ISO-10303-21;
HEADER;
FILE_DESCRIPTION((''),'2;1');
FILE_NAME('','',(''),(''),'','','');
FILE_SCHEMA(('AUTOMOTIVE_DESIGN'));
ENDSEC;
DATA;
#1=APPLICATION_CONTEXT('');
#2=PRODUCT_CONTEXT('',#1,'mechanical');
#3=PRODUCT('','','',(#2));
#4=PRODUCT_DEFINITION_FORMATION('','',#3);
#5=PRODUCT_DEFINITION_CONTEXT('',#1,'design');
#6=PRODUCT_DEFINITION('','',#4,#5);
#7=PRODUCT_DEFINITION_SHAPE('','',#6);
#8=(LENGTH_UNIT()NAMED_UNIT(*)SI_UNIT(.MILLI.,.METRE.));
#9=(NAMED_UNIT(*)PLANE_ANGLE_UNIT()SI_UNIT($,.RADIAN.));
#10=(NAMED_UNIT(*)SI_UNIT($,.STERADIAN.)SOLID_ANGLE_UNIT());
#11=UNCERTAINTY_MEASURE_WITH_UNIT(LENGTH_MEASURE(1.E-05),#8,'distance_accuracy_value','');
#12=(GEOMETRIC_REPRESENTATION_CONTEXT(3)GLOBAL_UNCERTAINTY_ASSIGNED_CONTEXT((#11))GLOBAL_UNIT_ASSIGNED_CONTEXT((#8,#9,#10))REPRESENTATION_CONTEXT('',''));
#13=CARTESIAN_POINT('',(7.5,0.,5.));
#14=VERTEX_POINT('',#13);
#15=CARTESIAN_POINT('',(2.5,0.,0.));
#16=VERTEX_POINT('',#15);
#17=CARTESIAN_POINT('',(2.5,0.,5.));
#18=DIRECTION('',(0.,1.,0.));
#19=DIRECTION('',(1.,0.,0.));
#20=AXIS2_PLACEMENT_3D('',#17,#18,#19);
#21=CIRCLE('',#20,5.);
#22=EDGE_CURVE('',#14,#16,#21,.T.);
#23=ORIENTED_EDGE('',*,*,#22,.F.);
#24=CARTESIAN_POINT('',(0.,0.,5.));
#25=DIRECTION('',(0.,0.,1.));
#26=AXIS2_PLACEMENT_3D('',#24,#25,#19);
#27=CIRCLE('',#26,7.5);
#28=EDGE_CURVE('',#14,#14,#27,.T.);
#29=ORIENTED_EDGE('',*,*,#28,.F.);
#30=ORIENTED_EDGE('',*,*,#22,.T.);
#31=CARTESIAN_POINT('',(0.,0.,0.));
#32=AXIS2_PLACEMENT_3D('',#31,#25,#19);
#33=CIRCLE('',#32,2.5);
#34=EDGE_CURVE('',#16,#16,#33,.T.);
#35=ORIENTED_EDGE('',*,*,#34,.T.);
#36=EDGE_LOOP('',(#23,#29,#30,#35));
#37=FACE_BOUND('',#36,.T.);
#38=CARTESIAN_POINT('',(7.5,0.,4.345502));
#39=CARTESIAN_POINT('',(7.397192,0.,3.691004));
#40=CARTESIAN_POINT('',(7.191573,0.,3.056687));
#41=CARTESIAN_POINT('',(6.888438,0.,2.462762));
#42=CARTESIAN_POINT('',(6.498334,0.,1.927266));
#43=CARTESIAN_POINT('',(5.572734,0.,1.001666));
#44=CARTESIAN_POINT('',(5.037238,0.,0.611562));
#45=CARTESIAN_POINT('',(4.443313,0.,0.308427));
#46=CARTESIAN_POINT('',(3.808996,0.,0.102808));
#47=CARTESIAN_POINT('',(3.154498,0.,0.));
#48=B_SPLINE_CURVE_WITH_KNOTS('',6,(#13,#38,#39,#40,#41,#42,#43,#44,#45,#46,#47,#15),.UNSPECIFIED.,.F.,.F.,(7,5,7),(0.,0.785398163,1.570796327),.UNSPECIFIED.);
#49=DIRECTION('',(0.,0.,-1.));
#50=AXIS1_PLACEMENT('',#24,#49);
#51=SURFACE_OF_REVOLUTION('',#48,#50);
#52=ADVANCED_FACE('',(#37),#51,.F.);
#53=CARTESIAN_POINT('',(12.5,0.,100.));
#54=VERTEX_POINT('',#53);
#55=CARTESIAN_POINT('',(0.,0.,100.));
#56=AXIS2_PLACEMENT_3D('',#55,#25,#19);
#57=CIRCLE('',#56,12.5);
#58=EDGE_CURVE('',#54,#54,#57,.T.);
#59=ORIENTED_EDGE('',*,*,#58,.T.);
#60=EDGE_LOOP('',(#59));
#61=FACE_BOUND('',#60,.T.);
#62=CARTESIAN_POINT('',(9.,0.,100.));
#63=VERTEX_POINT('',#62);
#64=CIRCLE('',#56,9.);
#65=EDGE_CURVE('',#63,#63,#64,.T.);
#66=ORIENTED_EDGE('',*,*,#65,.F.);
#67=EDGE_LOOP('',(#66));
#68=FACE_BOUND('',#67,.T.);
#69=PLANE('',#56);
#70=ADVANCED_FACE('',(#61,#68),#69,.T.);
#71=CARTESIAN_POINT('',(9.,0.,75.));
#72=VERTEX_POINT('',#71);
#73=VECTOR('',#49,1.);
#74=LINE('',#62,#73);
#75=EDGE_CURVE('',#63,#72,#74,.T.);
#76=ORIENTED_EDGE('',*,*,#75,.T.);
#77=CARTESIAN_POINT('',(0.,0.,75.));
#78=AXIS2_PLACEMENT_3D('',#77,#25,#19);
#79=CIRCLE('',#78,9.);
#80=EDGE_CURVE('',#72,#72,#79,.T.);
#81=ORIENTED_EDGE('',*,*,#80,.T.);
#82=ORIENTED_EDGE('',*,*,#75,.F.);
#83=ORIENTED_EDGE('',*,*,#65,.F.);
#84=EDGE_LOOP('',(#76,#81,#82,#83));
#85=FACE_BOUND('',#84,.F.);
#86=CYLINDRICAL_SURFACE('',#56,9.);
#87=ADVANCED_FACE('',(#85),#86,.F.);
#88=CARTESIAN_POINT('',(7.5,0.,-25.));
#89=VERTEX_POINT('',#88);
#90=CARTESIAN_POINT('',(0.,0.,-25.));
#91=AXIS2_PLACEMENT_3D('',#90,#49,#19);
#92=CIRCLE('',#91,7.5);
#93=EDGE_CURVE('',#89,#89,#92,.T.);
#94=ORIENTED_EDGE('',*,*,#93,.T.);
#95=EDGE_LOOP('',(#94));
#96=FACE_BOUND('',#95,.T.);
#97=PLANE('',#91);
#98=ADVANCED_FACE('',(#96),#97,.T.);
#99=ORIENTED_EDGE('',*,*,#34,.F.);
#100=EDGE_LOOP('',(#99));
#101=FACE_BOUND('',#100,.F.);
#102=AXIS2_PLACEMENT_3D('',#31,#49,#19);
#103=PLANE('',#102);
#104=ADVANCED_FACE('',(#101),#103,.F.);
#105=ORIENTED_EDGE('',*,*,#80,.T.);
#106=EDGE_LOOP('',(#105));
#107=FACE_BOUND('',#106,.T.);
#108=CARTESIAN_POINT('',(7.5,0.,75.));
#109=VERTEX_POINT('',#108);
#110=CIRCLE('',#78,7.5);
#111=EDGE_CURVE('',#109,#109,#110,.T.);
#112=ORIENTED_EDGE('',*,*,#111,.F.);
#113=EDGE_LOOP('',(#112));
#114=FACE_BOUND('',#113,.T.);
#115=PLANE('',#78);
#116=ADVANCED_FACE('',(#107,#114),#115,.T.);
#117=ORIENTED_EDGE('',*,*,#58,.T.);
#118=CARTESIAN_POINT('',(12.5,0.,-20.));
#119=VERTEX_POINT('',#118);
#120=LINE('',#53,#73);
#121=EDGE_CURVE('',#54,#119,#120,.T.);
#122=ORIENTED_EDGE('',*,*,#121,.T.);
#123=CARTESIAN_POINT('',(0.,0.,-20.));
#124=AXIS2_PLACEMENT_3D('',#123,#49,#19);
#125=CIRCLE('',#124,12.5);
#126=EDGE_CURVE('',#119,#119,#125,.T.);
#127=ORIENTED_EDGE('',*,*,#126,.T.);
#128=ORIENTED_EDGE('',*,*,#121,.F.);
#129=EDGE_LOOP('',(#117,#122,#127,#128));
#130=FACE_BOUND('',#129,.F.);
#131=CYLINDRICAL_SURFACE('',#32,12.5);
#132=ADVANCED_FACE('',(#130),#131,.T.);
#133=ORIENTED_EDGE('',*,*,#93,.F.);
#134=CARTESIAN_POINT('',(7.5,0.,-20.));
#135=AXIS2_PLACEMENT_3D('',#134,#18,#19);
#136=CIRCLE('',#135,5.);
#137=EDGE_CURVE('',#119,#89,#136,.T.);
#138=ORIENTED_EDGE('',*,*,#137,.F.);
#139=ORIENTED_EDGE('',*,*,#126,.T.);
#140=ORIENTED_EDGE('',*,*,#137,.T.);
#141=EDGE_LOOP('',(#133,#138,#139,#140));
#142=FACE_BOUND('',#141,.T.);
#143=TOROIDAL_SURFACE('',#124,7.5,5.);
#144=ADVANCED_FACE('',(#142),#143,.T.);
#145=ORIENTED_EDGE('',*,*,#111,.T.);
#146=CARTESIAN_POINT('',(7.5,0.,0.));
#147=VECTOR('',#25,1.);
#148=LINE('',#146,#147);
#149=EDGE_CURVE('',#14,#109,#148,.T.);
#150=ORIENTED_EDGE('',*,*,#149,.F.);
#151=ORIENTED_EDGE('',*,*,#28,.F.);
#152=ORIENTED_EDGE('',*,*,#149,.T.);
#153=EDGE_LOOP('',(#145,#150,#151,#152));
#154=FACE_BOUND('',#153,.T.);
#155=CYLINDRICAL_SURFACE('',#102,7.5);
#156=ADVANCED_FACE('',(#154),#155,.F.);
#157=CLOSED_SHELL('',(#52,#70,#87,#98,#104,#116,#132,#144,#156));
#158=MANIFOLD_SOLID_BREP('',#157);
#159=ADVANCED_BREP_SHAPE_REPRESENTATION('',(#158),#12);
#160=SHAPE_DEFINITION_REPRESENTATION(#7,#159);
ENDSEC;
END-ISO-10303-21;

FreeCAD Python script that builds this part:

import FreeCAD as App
import Part
import Sketcher
from FreeCAD import Vector
Q = App.Units.Quantity


def edges_at(feature, points):
    """Names of the edges that pass closest to the given points."""
    edges = feature.Shape.Edges
    near = lambda p: min(range(len(edges)), key=lambda i: edges[i].distToShape(Part.Vertex(*p))[0])
    return sorted({f"Edge{near(p) + 1}" for p in points})

doc = App.newDocument("Part")
body = doc.addObject("PartDesign::Body", "Body")

sketch1 = doc.addObject("Sketcher::SketchObject", "Sketch")
body.addObject(sketch1)
sketch1.AttachmentSupport = (doc.XY_Plane, [""])
sketch1.MapMode = "FlatFace"
sketch1.addGeometry([
    Part.Circle(Vector(0, 0, 0), Vector(0, 0, 1), 12),
    Part.Circle(Vector(0, 0, 0), Vector(0, 0, 1), 8),
], False)
sketch1.addConstraint([
    Sketcher.Constraint("Coincident", 0, 3, -1, 1),
    Sketcher.Constraint("Coincident", 1, 3, -1, 1),
    Sketcher.Constraint("Diameter", 0, Q("25 mm")),
    Sketcher.Constraint("Diameter", 1, Q("15 mm")),
])
pad1 = doc.addObject("PartDesign::Pad", "Pad")
body.addObject(pad1)
pad1.Profile = sketch1
pad1.Length = 100

sketch2 = doc.addObject("Sketcher::SketchObject", "Sketch001")
body.addObject(sketch2)
sketch2.AttachmentSupport = (doc.XY_Plane, [""])
sketch2.MapMode = "FlatFace"
sketch2.addGeometry(Part.Circle(Vector(0, 0, 0), Vector(0, 0, 1), 12), False)
sketch2.addConstraint([
    Sketcher.Constraint("Coincident", 0, 3, -1, 1),
    Sketcher.Constraint("Diameter", 0, Q("25 mm")),
])
pad2 = doc.addObject("PartDesign::Pad", "Pad001")
body.addObject(pad2)
pad2.Profile = sketch2
pad2.Length = 25
pad2.Reversed = True
doc.recompute()

fillet = doc.addObject("PartDesign::Fillet", "Fillet")
body.addObject(fillet)
fillet.Base = (pad2, edges_at(pad2, [(-12.5, 0, -25), (-7.5, 0, 0)]))
fillet.Radius = 5

sketch3 = doc.addObject("Sketcher::SketchObject", "Sketch002")
body.addObject(sketch3)
sketch3.AttachmentSupport = (doc.XY_Plane, [""])
sketch3.MapMode = "FlatFace"
sketch3.AttachmentOffset = App.Placement(Vector(0, 0, 100), App.Rotation())
sketch3.addGeometry([
    Part.Circle(Vector(0, 0, 0), Vector(0, 0, 1), 9),
    Part.Circle(Vector(0, 0, 0), Vector(0, 0, 1), 8),
], False)
sketch3.addConstraint([
    Sketcher.Constraint("Coincident", 0, 3, -1, 1),
    Sketcher.Constraint("Coincident", 1, 3, -1, 1),
    Sketcher.Constraint("Diameter", 0, Q("18 mm")),
    Sketcher.Constraint("Diameter", 1, Q("15 mm")),
])
pocket1 = doc.addObject("PartDesign::Pocket", "Pocket")
body.addObject(pocket1)
pocket1.Profile = sketch3
pocket1.Length = 25

doc.recompute()
